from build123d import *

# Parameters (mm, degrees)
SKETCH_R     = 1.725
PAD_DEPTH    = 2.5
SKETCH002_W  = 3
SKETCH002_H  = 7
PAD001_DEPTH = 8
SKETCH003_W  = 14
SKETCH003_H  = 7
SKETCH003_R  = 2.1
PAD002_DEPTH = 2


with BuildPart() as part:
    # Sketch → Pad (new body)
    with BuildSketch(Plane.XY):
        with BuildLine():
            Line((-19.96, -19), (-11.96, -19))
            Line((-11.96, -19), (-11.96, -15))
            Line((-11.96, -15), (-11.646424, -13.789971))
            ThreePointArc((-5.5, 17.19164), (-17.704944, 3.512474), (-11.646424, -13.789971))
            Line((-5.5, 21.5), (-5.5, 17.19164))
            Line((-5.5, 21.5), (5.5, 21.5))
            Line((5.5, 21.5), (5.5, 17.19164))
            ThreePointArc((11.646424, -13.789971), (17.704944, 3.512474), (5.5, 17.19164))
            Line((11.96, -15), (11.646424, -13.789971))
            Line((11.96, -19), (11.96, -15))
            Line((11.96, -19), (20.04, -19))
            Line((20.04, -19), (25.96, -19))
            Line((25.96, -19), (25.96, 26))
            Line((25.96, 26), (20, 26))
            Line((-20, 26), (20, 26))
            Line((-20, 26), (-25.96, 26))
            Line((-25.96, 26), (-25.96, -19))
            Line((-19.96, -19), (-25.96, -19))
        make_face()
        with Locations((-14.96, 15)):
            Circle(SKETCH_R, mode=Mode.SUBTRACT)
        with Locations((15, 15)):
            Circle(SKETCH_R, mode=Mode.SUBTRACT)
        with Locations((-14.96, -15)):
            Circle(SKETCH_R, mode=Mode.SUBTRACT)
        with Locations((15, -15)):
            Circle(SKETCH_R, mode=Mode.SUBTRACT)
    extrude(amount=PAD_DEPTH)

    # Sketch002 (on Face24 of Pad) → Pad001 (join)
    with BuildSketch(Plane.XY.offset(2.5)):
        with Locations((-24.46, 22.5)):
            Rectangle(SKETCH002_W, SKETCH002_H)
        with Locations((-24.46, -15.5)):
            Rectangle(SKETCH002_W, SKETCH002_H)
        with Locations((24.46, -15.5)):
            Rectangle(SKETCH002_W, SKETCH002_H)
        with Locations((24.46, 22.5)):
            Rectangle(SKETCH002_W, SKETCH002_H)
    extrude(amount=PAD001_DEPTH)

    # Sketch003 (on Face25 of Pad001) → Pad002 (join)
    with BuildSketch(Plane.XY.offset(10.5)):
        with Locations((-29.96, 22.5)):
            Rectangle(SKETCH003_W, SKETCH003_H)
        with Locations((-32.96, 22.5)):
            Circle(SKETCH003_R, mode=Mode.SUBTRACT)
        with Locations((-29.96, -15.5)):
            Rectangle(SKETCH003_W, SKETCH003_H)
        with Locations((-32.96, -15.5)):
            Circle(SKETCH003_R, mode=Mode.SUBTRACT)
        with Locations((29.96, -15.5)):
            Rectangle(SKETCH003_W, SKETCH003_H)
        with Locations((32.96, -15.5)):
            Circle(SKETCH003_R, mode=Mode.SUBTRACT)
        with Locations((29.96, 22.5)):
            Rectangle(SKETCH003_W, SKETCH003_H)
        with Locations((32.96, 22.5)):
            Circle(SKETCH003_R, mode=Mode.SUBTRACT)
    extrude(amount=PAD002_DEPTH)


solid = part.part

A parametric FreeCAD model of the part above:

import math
import FreeCAD as App
import Part
import Sketcher

doc = App.newDocument("Part")
body = doc.addObject("PartDesign::Body", "Body")

sketch1 = body.newObject("Sketcher::SketchObject", "Sketch")
sketch1.AttachmentSupport = (doc.getObject("XY_Plane"), [""])
sketch1.MapMode = "FlatFace"
sketch1.addGeometry(Part.LineSegment(App.Vector(-12, -19, 0), App.Vector(-12, -15, 0)), False)
sketch1.addGeometry(Part.LineSegment(App.Vector(-12, -15, 0), App.Vector(-11.6, -13.8, 0)), False)
sketch1.addGeometry(Part.ArcOfCircle(Part.Circle(App.Vector(0, 0, 0), App.Vector(0, 0, 1), 18), math.radians(108), math.radians(230)), False)
sketch1.addGeometry(Part.LineSegment(App.Vector(-5.5, 17.2, 0), App.Vector(-5.5, 21.5, 0)), False)
sketch1.addGeometry(Part.LineSegment(App.Vector(-5.5, 21.5, 0), App.Vector(5.5, 21.5, 0)), False)
sketch1.addGeometry(Part.LineSegment(App.Vector(5.5, 21.5, 0), App.Vector(5.5, 17.2, 0)), False)
sketch1.addGeometry(Part.ArcOfCircle(Part.Circle(App.Vector(0, 0, 0), App.Vector(0, 0, 1), 18), math.radians(-50), math.radians(72)), False)
sketch1.addGeometry(Part.LineSegment(App.Vector(11.6, -13.8, 0), App.Vector(12, -15, 0)), False)
sketch1.addGeometry(Part.LineSegment(App.Vector(12, -15, 0), App.Vector(12, -19, 0)), False)
sketch1.addGeometry(Part.LineSegment(App.Vector(12, -19, 0), App.Vector(26, -19, 0)), False)
sketch1.addGeometry(Part.LineSegment(App.Vector(26, -19, 0), App.Vector(26, 26, 0)), False)
sketch1.addGeometry(Part.LineSegment(App.Vector(26, 26, 0), App.Vector(-26, 26, 0)), False)
sketch1.addGeometry(Part.LineSegment(App.Vector(-26, 26, 0), App.Vector(-26, -19, 0)), False)
sketch1.addGeometry(Part.LineSegment(App.Vector(-26, -19, 0), App.Vector(-12, -19, 0)), False)
sketch1.addGeometry(Part.Circle(App.Vector(-15, -15, 0), App.Vector(0, 0, 1), 1.7), False)
sketch1.addGeometry(Part.Circle(App.Vector(15, -15, 0), App.Vector(0, 0, 1), 1.7), False)
sketch1.addGeometry(Part.Circle(App.Vector(-15, 15, 0), App.Vector(0, 0, 1), 1.7), False)
sketch1.addGeometry(Part.Circle(App.Vector(15, 15, 0), App.Vector(0, 0, 1), 1.7), False)
sketch1.addConstraint(Sketcher.Constraint("Coincident", 0, 2, 1, 1))
sketch1.addConstraint(Sketcher.Constraint("Coincident", 1, 2, 2, 2))
sketch1.addConstraint(Sketcher.Constraint("Coincident", 2, 1, 3, 1))
sketch1.addConstraint(Sketcher.Constraint("Coincident", 3, 2, 4, 1))
sketch1.addConstraint(Sketcher.Constraint("Coincident", 4, 2, 5, 1))
sketch1.addConstraint(Sketcher.Constraint("Coincident", 5, 2, 6, 2))
sketch1.addConstraint(Sketcher.Constraint("Coincident", 6, 1, 7, 1))
sketch1.addConstraint(Sketcher.Constraint("Coincident", 7, 2, 8, 1))
sketch1.addConstraint(Sketcher.Constraint("Coincident", 8, 2, 9, 1))
sketch1.addConstraint(Sketcher.Constraint("Coincident", 9, 2, 10, 1))
sketch1.addConstraint(Sketcher.Constraint("Coincident", 10, 2, 11, 1))
sketch1.addConstraint(Sketcher.Constraint("Coincident", 11, 2, 12, 1))
sketch1.addConstraint(Sketcher.Constraint("Coincident", 12, 2, 13, 1))
sketch1.addConstraint(Sketcher.Constraint("Coincident", 13, 2, 0, 1))
sketch1.addConstraint(Sketcher.Constraint("Vertical", 0))
sketch1.addConstraint(Sketcher.Constraint("Vertical", 3))
sketch1.addConstraint(Sketcher.Constraint("Horizontal", 4))
sketch1.addConstraint(Sketcher.Constraint("Vertical", 5))
sketch1.addConstraint(Sketcher.Constraint("Vertical", 8))
sketch1.addConstraint(Sketcher.Constraint("Horizontal", 9))
sketch1.addConstraint(Sketcher.Constraint("Vertical", 10))
sketch1.addConstraint(Sketcher.Constraint("Horizontal", 11))
sketch1.addConstraint(Sketcher.Constraint("Vertical", 12))
sketch1.addConstraint(Sketcher.Constraint("Horizontal", 13))
sketch1.addConstraint(Sketcher.Constraint("Coincident", 2, 3, -1, 1))
sketch1.addConstraint(Sketcher.Constraint("Coincident", 6, 3, -1, 1))
sketch1.addConstraint(Sketcher.Constraint("Equal", 2, 6))
sketch1.addConstraint(Sketcher.Constraint("Equal", 14, 15))
sketch1.addConstraint(Sketcher.Constraint("Equal", 15, 16))
sketch1.addConstraint(Sketcher.Constraint("Equal", 16, 17))
sketch1.addConstraint(Sketcher.Constraint("Symmetric", 0, 2, 7, 2, -2))
sketch1.addConstraint(Sketcher.Constraint("Symmetric", 9, 2, 12, 2, -2))
sketch1.addConstraint(Sketcher.Constraint("Symmetric", 14, 3, 16, 3, -1))
sketch1.addConstraint(Sketcher.Constraint("Symmetric", 15, 3, 17, 3, -1))
sketch1.addConstraint(Sketcher.Constraint("Horizontal", 14, 3, 15, 3))
sketch1.addConstraint(Sketcher.Constraint("Horizontal", 15, 3, 0, 2))
sketch1.addConstraint(Sketcher.Constraint("Horizontal", 2, 1, 5, 2))
sketch1.addConstraint(Sketcher.Constraint("Horizontal", 1, 2, 6, 1))
sketch1.addConstraint(Sketcher.Constraint("Diameter", 14, 3.45))
sketch1.addConstraint(Sketcher.Constraint("DistanceX", 4, 1, 4, 2, 11.0))
sketch1.addConstraint(Sketcher.Constraint("DistanceX", 9, 1, 9, 2, 14.0))
sketch1.addConstraint(Sketcher.Constraint("DistanceY", 0, 1, 0, 2, 4.0))
sketch1.addConstraint(Sketcher.Constraint("DistanceY", 10, 1, 10, 2, 45.0))
sketch1.addConstraint(Sketcher.Constraint("Radius", 2, 18.049999))
sketch1.addConstraint(Sketcher.Constraint("DistanceY", 14, 3, -1, 1, 15.0))
sketch1.addConstraint(Sketcher.Constraint("DistanceX", -1, 1, 15, 3, 15.0))
sketch1.addConstraint(Sketcher.Constraint("DistanceX", 14, 3, 0, 2, 3.0))
sketch1.addConstraint(Sketcher.Constraint("DistanceX", 11, 2, 11, 1, 51.92))
sketch1.addConstraint(Sketcher.Constraint("DistanceY", -1, 1, 3, 2, 21.5))
sketch1.addConstraint(Sketcher.Constraint("Distance", 1, 1.25))
pad1 = body.newObject("PartDesign::Pad", "Pad")
pad1.Profile = sketch1
pad1.Length = 2.5

sketch2 = body.newObject("Sketcher::SketchObject", "Sketch001")
sketch2.AttachmentSupport = (doc.getObject("XY_Plane"), [""])
sketch2.MapMode = "FlatFace"
sketch2.AttachmentOffset = App.Placement(App.Vector(0, 0, 2.5), App.Rotation())
sketch2.addGeometry(Part.LineSegment(App.Vector(-26, 26, 0), App.Vector(-26, 19, 0)), False)
sketch2.addGeometry(Part.LineSegment(App.Vector(-26, 19, 0), App.Vector(-23, 19, 0)), False)
sketch2.addGeometry(Part.LineSegment(App.Vector(-23, 19, 0), App.Vector(-23, 26, 0)), False)
sketch2.addGeometry(Part.LineSegment(App.Vector(-23, 26, 0), App.Vector(-26, 26, 0)), False)
sketch2.addGeometry(Part.LineSegment(App.Vector(-26, -12, 0), App.Vector(-26, -19, 0)), False)
sketch2.addGeometry(Part.LineSegment(App.Vector(-26, -19, 0), App.Vector(-23, -19, 0)), False)
sketch2.addGeometry(Part.LineSegment(App.Vector(-23, -19, 0), App.Vector(-23, -12, 0)), False)
sketch2.addGeometry(Part.LineSegment(App.Vector(-23, -12, 0), App.Vector(-26, -12, 0)), False)
sketch2.addGeometry(Part.LineSegment(App.Vector(23, -12, 0), App.Vector(23, -19, 0)), False)
sketch2.addGeometry(Part.LineSegment(App.Vector(23, -19, 0), App.Vector(26, -19, 0)), False)
sketch2.addGeometry(Part.LineSegment(App.Vector(26, -19, 0), App.Vector(26, -12, 0)), False)
sketch2.addGeometry(Part.LineSegment(App.Vector(26, -12, 0), App.Vector(23, -12, 0)), False)
sketch2.addGeometry(Part.LineSegment(App.Vector(23, 26, 0), App.Vector(23, 19, 0)), False)
sketch2.addGeometry(Part.LineSegment(App.Vector(23, 19, 0), App.Vector(26, 19, 0)), False)
sketch2.addGeometry(Part.LineSegment(App.Vector(26, 19, 0), App.Vector(26, 26, 0)), False)
sketch2.addGeometry(Part.LineSegment(App.Vector(26, 26, 0), App.Vector(23, 26, 0)), False)
sketch2.addConstraint(Sketcher.Constraint("Coincident", 0, 2, 1, 1))
sketch2.addConstraint(Sketcher.Constraint("Coincident", 1, 2, 2, 1))
sketch2.addConstraint(Sketcher.Constraint("Coincident", 2, 2, 3, 1))
sketch2.addConstraint(Sketcher.Constraint("Coincident", 3, 2, 0, 1))
sketch2.addConstraint(Sketcher.Constraint("Coincident", 4, 2, 5, 1))
sketch2.addConstraint(Sketcher.Constraint("Coincident", 5, 2, 6, 1))
sketch2.addConstraint(Sketcher.Constraint("Coincident", 6, 2, 7, 1))
sketch2.addConstraint(Sketcher.Constraint("Coincident", 7, 2, 4, 1))
sketch2.addConstraint(Sketcher.Constraint("Coincident", 8, 2, 9, 1))
sketch2.addConstraint(Sketcher.Constraint("Coincident", 9, 2, 10, 1))
sketch2.addConstraint(Sketcher.Constraint("Coincident", 10, 2, 11, 1))
sketch2.addConstraint(Sketcher.Constraint("Coincident", 11, 2, 8, 1))
sketch2.addConstraint(Sketcher.Constraint("Coincident", 12, 2, 13, 1))
sketch2.addConstraint(Sketcher.Constraint("Coincident", 13, 2, 14, 1))
sketch2.addConstraint(Sketcher.Constraint("Coincident", 14, 2, 15, 1))
sketch2.addConstraint(Sketcher.Constraint("Coincident", 15, 2, 12, 1))
sketch2.addConstraint(Sketcher.Constraint("Vertical", 0))
sketch2.addConstraint(Sketcher.Constraint("Horizontal", 1))
sketch2.addConstraint(Sketcher.Constraint("Vertical", 2))
sketch2.addConstraint(Sketcher.Constraint("Horizontal", 3))
sketch2.addConstraint(Sketcher.Constraint("Vertical", 4))
sketch2.addConstraint(Sketcher.Constraint("Horizontal", 5))
sketch2.addConstraint(Sketcher.Constraint("Vertical", 6))
sketch2.addConstraint(Sketcher.Constraint("Horizontal", 7))
sketch2.addConstraint(Sketcher.Constraint("Vertical", 8))
sketch2.addConstraint(Sketcher.Constraint("Horizontal", 9))
sketch2.addConstraint(Sketcher.Constraint("Vertical", 10))
sketch2.addConstraint(Sketcher.Constraint("Horizontal", 11))
sketch2.addConstraint(Sketcher.Constraint("Vertical", 12))
sketch2.addConstraint(Sketcher.Constraint("Horizontal", 13))
sketch2.addConstraint(Sketcher.Constraint("Vertical", 14))
sketch2.addConstraint(Sketcher.Constraint("Horizontal", 15))
sketch2.addConstraint(Sketcher.Constraint("Symmetric", 1, 2, 8, 2, -1, 1))
sketch2.addConstraint(Sketcher.Constraint("Symmetric", 5, 2, 12, 2, -1, 1))
sketch2.addConstraint(Sketcher.Constraint("Symmetric", 5, 2, 8, 2, -2))
sketch2.addConstraint(Sketcher.Constraint("Symmetric", 7, 2, 10, 2, -2))
sketch2.addConstraint(Sketcher.Constraint("Symmetric", 3, 2, 14, 2, -2))
sketch2.addConstraint(Sketcher.Constraint("Vertical", 3, 2, 4, 2))
sketch2.addConstraint(Sketcher.Constraint("Equal", 2, 4))
sketch2.addConstraint(Sketcher.Constraint("DistanceX", 1, 1, 1, 2, 3.0))
sketch2.addConstraint(Sketcher.Constraint("DistanceY", 0, 2, 0, 1, 7.0))
sketch2.addConstraint(Sketcher.Constraint("DistanceY", -1, 1, 0, 2, 19.0))
sketch2.addConstraint(Sketcher.Constraint("DistanceX", 0, 2, -1, 1, 25.96))
pad2 = body.newObject("PartDesign::Pad", "Pad001")
pad2.Profile = sketch2
pad2.Length = 8

sketch3 = body.newObject("Sketcher::SketchObject", "Sketch002")
sketch3.AttachmentSupport = (doc.getObject("XY_Plane"), [""])
sketch3.MapMode = "FlatFace"
sketch3.AttachmentOffset = App.Placement(App.Vector(0, 0, 10.5), App.Rotation())
sketch3.addGeometry(Part.LineSegment(App.Vector(-37, 26, 0), App.Vector(-37, 19, 0)), False)
sketch3.addGeometry(Part.LineSegment(App.Vector(-37, 19, 0), App.Vector(-23, 19, 0)), False)
sketch3.addGeometry(Part.LineSegment(App.Vector(-23, 19, 0), App.Vector(-23, 26, 0)), False)
sketch3.addGeometry(Part.LineSegment(App.Vector(-23, 26, 0), App.Vector(-37, 26, 0)), False)
sketch3.addGeometry(Part.Circle(App.Vector(-33, 22.5, 0), App.Vector(0, 0, 1), 2.1), False)
sketch3.addGeometry(Part.LineSegment(App.Vector(-37, -12, 0), App.Vector(-37, -19, 0)), False)
sketch3.addGeometry(Part.LineSegment(App.Vector(-37, -19, 0), App.Vector(-23, -19, 0)), False)
sketch3.addGeometry(Part.LineSegment(App.Vector(-23, -19, 0), App.Vector(-23, -12, 0)), False)
sketch3.addGeometry(Part.LineSegment(App.Vector(-23, -12, 0), App.Vector(-37, -12, 0)), False)
sketch3.addGeometry(Part.Circle(App.Vector(-33, -15.5, 0), App.Vector(0, 0, 1), 2.1), False)
sketch3.addGeometry(Part.LineSegment(App.Vector(23, -12, 0), App.Vector(23, -19, 0)), False)
sketch3.addGeometry(Part.LineSegment(App.Vector(23, -19, 0), App.Vector(37, -19, 0)), False)
sketch3.addGeometry(Part.LineSegment(App.Vector(37, -19, 0), App.Vector(37, -12, 0)), False)
sketch3.addGeometry(Part.LineSegment(App.Vector(37, -12, 0), App.Vector(23, -12, 0)), False)
sketch3.addGeometry(Part.Circle(App.Vector(33, -15.5, 0), App.Vector(0, 0, 1), 2.1), False)
sketch3.addGeometry(Part.LineSegment(App.Vector(23, 26, 0), App.Vector(23, 19, 0)), False)
sketch3.addGeometry(Part.LineSegment(App.Vector(23, 19, 0), App.Vector(37, 19, 0)), False)
sketch3.addGeometry(Part.LineSegment(App.Vector(37, 19, 0), App.Vector(37, 26, 0)), False)
sketch3.addGeometry(Part.LineSegment(App.Vector(37, 26, 0), App.Vector(23, 26, 0)), False)
sketch3.addGeometry(Part.Circle(App.Vector(33, 22.5, 0), App.Vector(0, 0, 1), 2.1), False)
sketch3.addConstraint(Sketcher.Constraint("Coincident", 0, 2, 1, 1))
sketch3.addConstraint(Sketcher.Constraint("Coincident", 1, 2, 2, 1))
sketch3.addConstraint(Sketcher.Constraint("Coincident", 2, 2, 3, 1))
sketch3.addConstraint(Sketcher.Constraint("Coincident", 3, 2, 0, 1))
sketch3.addConstraint(Sketcher.Constraint("Coincident", 5, 2, 6, 1))
sketch3.addConstraint(Sketcher.Constraint("Coincident", 6, 2, 7, 1))
sketch3.addConstraint(Sketcher.Constraint("Coincident", 7, 2, 8, 1))
sketch3.addConstraint(Sketcher.Constraint("Coincident", 8, 2, 5, 1))
sketch3.addConstraint(Sketcher.Constraint("Coincident", 10, 2, 11, 1))
sketch3.addConstraint(Sketcher.Constraint("Coincident", 11, 2, 12, 1))
sketch3.addConstraint(Sketcher.Constraint("Coincident", 12, 2, 13, 1))
sketch3.addConstraint(Sketcher.Constraint("Coincident", 13, 2, 10, 1))
sketch3.addConstraint(Sketcher.Constraint("Coincident", 15, 2, 16, 1))
sketch3.addConstraint(Sketcher.Constraint("Coincident", 16, 2, 17, 1))
sketch3.addConstraint(Sketcher.Constraint("Coincident", 17, 2, 18, 1))
sketch3.addConstraint(Sketcher.Constraint("Coincident", 18, 2, 15, 1))
sketch3.addConstraint(Sketcher.Constraint("Vertical", 0))
sketch3.addConstraint(Sketcher.Constraint("Horizontal", 1))
sketch3.addConstraint(Sketcher.Constraint("Vertical", 2))
sketch3.addConstraint(Sketcher.Constraint("Horizontal", 3))
sketch3.addConstraint(Sketcher.Constraint("Vertical", 5))
sketch3.addConstraint(Sketcher.Constraint("Horizontal", 6))
sketch3.addConstraint(Sketcher.Constraint("Vertical", 7))
sketch3.addConstraint(Sketcher.Constraint("Horizontal", 8))
sketch3.addConstraint(Sketcher.Constraint("Vertical", 10))
sketch3.addConstraint(Sketcher.Constraint("Horizontal", 11))
sketch3.addConstraint(Sketcher.Constraint("Vertical", 12))
sketch3.addConstraint(Sketcher.Constraint("Horizontal", 13))
sketch3.addConstraint(Sketcher.Constraint("Vertical", 15))
sketch3.addConstraint(Sketcher.Constraint("Horizontal", 16))
sketch3.addConstraint(Sketcher.Constraint("Vertical", 17))
sketch3.addConstraint(Sketcher.Constraint("Horizontal", 18))
sketch3.addConstraint(Sketcher.Constraint("Equal", 4, 9))
sketch3.addConstraint(Sketcher.Constraint("Equal", 9, 14))
sketch3.addConstraint(Sketcher.Constraint("Equal", 14, 19))
sketch3.addConstraint(Sketcher.Constraint("Symmetric", 1, 2, 10, 2, -1, 1))
sketch3.addConstraint(Sketcher.Constraint("Symmetric", 6, 2, 15, 2, -1, 1))
sketch3.addConstraint(Sketcher.Constraint("Symmetric", 9, 3, 14, 3, -2))
sketch3.addConstraint(Sketcher.Constraint("Symmetric", 4, 3, 19, 3, -2))
sketch3.addConstraint(Sketcher.Constraint("Symmetric", 6, 2, 10, 2, -2))
sketch3.addConstraint(Sketcher.Constraint("Symmetric", 8, 2, 12, 2, -2))
sketch3.addConstraint(Sketcher.Constraint("Symmetric", 3, 2, 17, 2, -2))
sketch3.addConstraint(Sketcher.Constraint("Vertical", 4, 3, 9, 3))
sketch3.addConstraint(Sketcher.Constraint("Vertical", 3, 2, 5, 2))
sketch3.addConstraint(Sketcher.Constraint("Equal", 2, 5))
sketch3.addConstraint(Sketcher.Constraint("Diameter", 4, 4.2))
sketch3.addConstraint(Sketcher.Constraint("DistanceX", 1, 1, 1, 2, 14.0))
sketch3.addConstraint(Sketcher.Constraint("DistanceY", 0, 2, 0, 1, 7.0))
sketch3.addConstraint(Sketcher.Constraint("DistanceY", -1, 1, 0, 2, 19.0))
sketch3.addConstraint(Sketcher.Constraint("DistanceY", 9, 3, 4, 3, 38.0))
sketch3.addConstraint(Sketcher.Constraint("DistanceX", 0, 2, 4, 3, 4.0))
sketch3.addConstraint(Sketcher.Constraint("DistanceY", -1, 1, 4, 3, 22.5))
sketch3.addConstraint(Sketcher.Constraint("DistanceX", 4, 3, -1, 1, 32.96))
pad3 = body.newObject("PartDesign::Pad", "Pad002")
pad3.Profile = sketch3
pad3.Length = 2

doc.recompute()
